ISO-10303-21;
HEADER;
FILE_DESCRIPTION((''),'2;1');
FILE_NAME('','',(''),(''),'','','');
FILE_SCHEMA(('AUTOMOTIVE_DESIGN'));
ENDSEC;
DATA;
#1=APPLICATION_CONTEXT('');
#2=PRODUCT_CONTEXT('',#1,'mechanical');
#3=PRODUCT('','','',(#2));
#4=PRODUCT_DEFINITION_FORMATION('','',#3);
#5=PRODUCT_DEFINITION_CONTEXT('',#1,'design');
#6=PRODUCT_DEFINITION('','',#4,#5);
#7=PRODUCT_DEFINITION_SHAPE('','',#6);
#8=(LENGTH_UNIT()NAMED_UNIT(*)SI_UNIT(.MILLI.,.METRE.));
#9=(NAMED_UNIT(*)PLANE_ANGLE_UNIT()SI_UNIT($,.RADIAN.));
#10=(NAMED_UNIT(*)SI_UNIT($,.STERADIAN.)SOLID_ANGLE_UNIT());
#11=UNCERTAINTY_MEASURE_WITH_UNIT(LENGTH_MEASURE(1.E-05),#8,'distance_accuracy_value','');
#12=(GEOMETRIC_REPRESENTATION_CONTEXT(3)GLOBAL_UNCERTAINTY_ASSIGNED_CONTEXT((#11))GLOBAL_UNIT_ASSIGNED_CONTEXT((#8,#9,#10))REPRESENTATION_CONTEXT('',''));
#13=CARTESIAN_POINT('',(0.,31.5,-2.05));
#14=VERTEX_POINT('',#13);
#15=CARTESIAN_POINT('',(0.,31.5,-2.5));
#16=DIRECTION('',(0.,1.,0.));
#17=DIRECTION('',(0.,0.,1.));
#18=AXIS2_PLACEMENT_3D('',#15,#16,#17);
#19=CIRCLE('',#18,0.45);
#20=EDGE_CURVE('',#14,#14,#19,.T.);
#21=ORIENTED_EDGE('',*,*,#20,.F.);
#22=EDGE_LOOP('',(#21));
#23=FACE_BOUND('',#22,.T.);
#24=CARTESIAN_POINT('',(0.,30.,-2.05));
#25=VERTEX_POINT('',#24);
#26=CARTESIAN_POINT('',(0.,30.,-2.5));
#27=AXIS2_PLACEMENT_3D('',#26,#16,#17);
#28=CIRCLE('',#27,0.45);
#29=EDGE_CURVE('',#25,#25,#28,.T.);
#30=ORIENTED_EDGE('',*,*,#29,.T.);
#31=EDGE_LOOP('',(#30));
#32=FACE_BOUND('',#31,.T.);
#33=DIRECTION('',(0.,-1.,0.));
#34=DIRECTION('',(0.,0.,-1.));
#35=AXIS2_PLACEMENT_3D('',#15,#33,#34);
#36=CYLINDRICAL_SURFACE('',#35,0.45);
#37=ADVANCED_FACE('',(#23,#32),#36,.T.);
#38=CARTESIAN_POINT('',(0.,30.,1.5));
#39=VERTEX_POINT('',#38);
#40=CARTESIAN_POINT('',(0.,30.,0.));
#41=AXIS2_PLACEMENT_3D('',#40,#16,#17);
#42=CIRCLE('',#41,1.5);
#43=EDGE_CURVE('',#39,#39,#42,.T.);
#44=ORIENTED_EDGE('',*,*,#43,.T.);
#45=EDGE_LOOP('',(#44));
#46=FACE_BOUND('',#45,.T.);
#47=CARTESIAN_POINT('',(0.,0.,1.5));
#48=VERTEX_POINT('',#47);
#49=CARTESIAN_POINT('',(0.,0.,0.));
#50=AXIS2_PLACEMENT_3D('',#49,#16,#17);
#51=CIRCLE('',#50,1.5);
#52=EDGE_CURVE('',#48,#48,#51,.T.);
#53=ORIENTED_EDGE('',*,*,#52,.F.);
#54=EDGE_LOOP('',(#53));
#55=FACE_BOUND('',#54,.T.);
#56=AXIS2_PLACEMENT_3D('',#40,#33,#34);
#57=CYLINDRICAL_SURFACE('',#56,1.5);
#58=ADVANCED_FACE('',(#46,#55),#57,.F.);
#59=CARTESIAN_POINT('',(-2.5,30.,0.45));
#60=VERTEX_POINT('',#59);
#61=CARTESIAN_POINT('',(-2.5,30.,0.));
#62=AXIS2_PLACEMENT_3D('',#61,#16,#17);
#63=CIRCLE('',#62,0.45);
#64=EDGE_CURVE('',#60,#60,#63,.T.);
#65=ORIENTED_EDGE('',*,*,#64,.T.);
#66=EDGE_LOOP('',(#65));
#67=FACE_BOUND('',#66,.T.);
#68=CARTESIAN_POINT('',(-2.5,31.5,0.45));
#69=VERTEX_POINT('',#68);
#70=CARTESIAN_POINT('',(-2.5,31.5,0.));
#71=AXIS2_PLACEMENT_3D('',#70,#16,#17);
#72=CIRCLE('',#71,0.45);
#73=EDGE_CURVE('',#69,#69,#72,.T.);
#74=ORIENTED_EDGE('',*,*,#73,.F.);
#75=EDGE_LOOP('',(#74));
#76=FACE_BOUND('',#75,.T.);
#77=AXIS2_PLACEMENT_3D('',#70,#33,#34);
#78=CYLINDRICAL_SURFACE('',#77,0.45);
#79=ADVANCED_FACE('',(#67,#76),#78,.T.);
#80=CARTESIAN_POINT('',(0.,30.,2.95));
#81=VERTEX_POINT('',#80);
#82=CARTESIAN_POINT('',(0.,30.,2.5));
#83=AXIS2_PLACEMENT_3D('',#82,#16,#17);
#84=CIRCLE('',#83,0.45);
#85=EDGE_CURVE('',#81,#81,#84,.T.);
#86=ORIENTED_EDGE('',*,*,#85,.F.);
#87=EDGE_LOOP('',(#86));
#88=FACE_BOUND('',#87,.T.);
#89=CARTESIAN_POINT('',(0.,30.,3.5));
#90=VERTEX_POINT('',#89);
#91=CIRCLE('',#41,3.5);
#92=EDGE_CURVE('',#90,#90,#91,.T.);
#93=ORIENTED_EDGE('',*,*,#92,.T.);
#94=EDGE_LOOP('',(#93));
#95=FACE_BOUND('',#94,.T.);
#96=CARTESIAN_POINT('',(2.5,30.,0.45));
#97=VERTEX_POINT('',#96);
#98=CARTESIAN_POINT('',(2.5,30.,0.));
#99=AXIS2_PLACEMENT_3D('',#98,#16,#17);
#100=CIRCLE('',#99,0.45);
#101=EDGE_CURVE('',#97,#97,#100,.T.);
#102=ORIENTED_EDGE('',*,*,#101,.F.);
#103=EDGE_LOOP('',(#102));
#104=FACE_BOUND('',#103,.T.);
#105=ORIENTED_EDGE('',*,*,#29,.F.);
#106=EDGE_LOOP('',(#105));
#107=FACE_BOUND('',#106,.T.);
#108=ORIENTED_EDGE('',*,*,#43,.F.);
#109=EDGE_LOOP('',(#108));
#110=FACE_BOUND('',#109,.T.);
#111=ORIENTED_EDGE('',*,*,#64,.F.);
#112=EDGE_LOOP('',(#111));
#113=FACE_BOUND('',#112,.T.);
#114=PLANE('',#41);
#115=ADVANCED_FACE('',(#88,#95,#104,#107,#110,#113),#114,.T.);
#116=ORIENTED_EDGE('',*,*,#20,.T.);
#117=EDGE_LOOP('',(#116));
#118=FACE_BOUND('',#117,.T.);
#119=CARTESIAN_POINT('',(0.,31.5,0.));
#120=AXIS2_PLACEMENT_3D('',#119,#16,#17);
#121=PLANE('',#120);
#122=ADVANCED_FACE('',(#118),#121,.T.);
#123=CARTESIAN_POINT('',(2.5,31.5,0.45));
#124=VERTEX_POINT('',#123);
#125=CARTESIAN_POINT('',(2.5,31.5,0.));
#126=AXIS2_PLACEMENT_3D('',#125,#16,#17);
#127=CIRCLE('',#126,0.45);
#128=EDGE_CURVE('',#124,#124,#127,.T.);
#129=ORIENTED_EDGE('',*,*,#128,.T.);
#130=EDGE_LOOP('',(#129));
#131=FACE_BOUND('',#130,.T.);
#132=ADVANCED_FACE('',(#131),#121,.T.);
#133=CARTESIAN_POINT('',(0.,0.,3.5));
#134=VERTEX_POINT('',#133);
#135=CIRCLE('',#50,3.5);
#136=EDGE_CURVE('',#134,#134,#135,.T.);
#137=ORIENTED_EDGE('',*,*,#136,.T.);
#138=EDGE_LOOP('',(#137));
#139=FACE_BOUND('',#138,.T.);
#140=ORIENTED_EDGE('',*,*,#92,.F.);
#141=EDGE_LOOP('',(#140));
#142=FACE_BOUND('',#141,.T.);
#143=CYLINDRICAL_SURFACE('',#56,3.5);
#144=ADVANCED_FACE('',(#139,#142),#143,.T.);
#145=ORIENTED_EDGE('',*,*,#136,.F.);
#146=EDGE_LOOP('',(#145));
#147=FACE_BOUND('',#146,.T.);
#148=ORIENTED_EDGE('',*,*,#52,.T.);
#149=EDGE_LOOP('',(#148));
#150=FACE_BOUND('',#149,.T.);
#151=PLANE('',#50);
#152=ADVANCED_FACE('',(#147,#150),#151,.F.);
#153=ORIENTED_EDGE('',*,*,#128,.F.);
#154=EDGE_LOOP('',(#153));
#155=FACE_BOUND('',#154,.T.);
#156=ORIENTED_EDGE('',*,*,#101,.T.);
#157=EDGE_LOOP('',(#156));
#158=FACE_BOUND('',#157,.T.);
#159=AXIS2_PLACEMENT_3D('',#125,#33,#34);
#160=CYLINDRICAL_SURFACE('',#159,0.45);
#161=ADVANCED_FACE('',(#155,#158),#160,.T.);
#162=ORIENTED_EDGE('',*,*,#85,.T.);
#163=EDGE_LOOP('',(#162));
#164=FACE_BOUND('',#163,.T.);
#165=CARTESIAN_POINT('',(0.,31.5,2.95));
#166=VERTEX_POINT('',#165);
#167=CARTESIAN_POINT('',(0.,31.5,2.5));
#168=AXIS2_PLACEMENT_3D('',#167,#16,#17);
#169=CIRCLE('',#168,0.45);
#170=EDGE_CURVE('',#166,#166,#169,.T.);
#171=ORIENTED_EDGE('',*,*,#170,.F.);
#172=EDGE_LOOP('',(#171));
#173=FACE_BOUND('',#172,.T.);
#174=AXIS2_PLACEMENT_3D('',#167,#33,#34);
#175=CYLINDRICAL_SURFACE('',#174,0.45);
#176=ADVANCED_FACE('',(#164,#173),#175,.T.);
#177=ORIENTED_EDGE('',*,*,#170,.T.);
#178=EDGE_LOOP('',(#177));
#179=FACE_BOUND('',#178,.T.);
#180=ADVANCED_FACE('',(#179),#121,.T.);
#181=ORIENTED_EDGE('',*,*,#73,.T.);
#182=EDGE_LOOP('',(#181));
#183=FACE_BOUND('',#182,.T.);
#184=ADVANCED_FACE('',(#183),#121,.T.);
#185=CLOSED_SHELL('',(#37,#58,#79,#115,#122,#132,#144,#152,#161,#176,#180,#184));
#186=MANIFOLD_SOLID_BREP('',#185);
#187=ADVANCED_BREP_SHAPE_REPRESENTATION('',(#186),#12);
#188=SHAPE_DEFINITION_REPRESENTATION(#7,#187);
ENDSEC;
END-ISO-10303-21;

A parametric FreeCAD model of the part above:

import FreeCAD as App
import Part
import Sketcher
from FreeCAD import Vector

doc = App.newDocument("Part")
params = doc.addObject("Spreadsheet::Sheet", "Params")
for row, (alias, value) in enumerate([
    ("sketch1_diameter", "7 mm"),
    ("sketch1_diameter2", "3 mm"),
    ("pad1_length", "30 mm"),
    ("sketch2_diameter", "0.9 mm"),
    ("pad2_length", "1.5 mm"),
], start=1):
    params.set(f"A{row}", alias)
    params.set(f"B{row}", "=" + value)
    params.setAlias(f"B{row}", alias)

body = doc.addObject("PartDesign::Body", "Body")

sketch1 = doc.addObject("Sketcher::SketchObject", "Sketch")
body.addObject(sketch1)
sketch1.AttachmentSupport = (doc.XZ_Plane, [""])
sketch1.MapMode = "FlatFace"
sketch1.addGeometry(Part.Circle(Vector(0, 0, 0), Vector(0, 0, 1), 3.5), False)
sketch1.addGeometry(Part.Circle(Vector(0, 0, 0), Vector(0, 0, 1), 1.5), False)
sketch1.addConstraint(Sketcher.Constraint("Coincident", 0, 3, -1, 1))
sketch1.addConstraint(Sketcher.Constraint("Coincident", 1, 3, -1, 1))
sketch1.addConstraint(Sketcher.Constraint("Diameter", 0, 7.0))
sketch1.addConstraint(Sketcher.Constraint("Diameter", 1, 3.0))
sketch1.setExpression("Constraints[2]", "Params.sketch1_diameter")
sketch1.setExpression("Constraints[3]", "Params.sketch1_diameter2")
pad1 = doc.addObject("PartDesign::Pad", "Pad")
body.addObject(pad1)
pad1.Profile = sketch1
pad1.setExpression("Length", "Params.pad1_length")
pad1.Reversed = True

sketch2 = doc.addObject("Sketcher::SketchObject", "Sketch001")
body.addObject(sketch2)
sketch2.AttachmentSupport = (doc.XZ_Plane, [""])
sketch2.MapMode = "FlatFace"
sketch2.AttachmentOffset = App.Placement(Vector(0, 0, -30), App.Rotation())
sketch2.addGeometry(Part.Circle(Vector(0, -2.5, 0), Vector(0, 0, 1), 0.45), False)
sketch2.addGeometry(Part.Circle(Vector(2.5, 0, 0), Vector(0, 0, 1), 0.45), False)
sketch2.addGeometry(Part.Circle(Vector(0, 2.5, 0), Vector(0, 0, 1), 0.45), False)
sketch2.addGeometry(Part.Circle(Vector(-2.5, 0, 0), Vector(0, 0, 1), 0.45), False)
sketch2.addConstraint(Sketcher.Constraint("Equal", 0, 1))
sketch2.addConstraint(Sketcher.Constraint("Equal", 1, 2))
sketch2.addConstraint(Sketcher.Constraint("Equal", 2, 3))
sketch2.addConstraint(Sketcher.Constraint("Symmetric", 0, 3, 2, 3, -1, 1))
sketch2.addConstraint(Sketcher.Constraint("Symmetric", 1, 3, 3, 3, -1, 1))
sketch2.addConstraint(Sketcher.Constraint("PointOnObject", 0, 3, -2))
sketch2.addConstraint(Sketcher.Constraint("PointOnObject", 1, 3, -1))
sketch2.addConstraint(Sketcher.Constraint("Diameter", 0, 0.9))
sketch2.addConstraint(Sketcher.Constraint("DistanceY", 0, 3, 2, 3, 5.0))
sketch2.addConstraint(Sketcher.Constraint("DistanceX", 3, 3, 1, 3, 5.0))
sketch2.setExpression("Constraints[7]", "Params.sketch2_diameter")
pad2 = doc.addObject("PartDesign::Pad", "Pad001")
body.addObject(pad2)
pad2.Profile = sketch2
pad2.setExpression("Length", "Params.pad2_length")
pad2.Reversed = True

doc.recompute()
